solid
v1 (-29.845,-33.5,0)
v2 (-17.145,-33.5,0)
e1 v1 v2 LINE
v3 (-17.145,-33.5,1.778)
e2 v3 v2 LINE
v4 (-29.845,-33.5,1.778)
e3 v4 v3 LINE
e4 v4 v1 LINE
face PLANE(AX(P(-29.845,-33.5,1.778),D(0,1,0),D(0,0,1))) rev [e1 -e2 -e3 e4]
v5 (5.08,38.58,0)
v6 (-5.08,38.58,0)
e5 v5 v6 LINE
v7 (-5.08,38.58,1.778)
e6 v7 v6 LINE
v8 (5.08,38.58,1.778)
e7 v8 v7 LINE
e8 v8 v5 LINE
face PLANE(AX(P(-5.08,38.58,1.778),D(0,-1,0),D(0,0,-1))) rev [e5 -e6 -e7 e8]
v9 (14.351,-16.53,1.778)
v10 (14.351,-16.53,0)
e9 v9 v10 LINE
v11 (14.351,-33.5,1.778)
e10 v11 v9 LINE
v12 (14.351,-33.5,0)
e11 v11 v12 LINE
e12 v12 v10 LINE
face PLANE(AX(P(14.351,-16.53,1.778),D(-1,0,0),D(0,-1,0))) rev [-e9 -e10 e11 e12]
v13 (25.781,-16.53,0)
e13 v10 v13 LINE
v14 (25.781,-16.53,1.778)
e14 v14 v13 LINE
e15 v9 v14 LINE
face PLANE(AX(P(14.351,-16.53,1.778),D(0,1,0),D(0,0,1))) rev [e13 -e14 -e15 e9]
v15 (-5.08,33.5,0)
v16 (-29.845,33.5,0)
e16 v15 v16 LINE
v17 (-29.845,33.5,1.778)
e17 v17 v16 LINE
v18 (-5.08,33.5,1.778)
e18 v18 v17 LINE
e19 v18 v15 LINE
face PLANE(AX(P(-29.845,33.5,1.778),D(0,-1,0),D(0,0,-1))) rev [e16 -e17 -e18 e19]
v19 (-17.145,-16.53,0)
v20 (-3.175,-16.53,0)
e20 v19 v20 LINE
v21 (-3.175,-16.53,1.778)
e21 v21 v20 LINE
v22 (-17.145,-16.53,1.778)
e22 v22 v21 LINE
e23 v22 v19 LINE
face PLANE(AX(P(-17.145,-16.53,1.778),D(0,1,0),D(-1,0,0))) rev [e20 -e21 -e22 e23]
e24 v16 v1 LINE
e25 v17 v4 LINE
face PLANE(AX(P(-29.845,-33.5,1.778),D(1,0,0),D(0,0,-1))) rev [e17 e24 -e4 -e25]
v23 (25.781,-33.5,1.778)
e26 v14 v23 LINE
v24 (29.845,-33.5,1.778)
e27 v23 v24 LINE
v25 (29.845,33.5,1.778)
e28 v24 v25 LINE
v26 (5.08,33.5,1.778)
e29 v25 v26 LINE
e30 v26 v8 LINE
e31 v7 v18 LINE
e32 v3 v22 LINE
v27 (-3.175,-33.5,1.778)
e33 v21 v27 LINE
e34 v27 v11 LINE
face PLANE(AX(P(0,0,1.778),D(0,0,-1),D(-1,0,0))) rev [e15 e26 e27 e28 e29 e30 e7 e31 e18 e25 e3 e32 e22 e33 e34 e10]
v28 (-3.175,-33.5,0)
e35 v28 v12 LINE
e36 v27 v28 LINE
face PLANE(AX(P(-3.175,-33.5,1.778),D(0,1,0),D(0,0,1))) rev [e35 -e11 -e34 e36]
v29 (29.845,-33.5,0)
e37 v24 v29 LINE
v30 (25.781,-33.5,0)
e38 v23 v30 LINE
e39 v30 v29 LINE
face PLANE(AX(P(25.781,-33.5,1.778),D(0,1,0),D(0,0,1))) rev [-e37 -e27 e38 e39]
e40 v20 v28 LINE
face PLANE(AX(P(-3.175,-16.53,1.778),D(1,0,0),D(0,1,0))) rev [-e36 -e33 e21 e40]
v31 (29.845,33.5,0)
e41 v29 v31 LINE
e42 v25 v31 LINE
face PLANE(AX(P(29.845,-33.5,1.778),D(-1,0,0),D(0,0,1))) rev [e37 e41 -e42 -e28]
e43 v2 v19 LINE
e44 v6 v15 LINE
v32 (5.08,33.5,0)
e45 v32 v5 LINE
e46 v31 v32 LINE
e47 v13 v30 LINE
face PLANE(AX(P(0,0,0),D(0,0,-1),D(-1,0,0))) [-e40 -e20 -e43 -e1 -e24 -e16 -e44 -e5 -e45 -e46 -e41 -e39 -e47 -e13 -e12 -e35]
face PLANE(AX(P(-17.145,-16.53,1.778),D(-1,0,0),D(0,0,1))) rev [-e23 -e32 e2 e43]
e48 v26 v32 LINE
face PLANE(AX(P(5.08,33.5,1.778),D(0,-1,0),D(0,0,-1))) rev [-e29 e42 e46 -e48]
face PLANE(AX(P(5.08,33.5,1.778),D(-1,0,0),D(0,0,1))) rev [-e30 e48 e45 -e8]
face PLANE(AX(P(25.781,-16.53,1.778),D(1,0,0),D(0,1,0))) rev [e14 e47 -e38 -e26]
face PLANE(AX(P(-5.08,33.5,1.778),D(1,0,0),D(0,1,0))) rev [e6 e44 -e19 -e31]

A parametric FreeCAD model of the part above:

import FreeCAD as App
import Part
import Sketcher

V = App.Vector
Q = App.Units.Quantity


def add_polygon(sketch, points):
    """Adds a closed chain of lines whose ends are joined by coincident constraints."""
    first, n = sketch.GeometryCount, len(points)
    for a, b in zip(points, points[1:] + points[:1]):
        sketch.addGeometry(Part.LineSegment(App.Vector(*a, 0), App.Vector(*b, 0)), False)
    for i in range(n):
        sketch.addConstraint(Sketcher.Constraint("Coincident", first + i, 2, first + (i + 1) % n, 1))

doc = App.newDocument("Part")
params = doc.addObject("Spreadsheet::Sheet", "Params")
for row, (alias, value) in enumerate([
    ("sketch1_width", "0.4 in"),
    ("sketch1_width2", "0.5 in"),
    ("sketch1_height", "0.2 in"),
    ("sketch1_width3", "0.55 in"),
    ("sketch1_width4", "0.69 in"),
    ("pad1_length", "0.07 in"),
], start=1):
    params.set(f"A{row}", alias)
    params.set(f"B{row}", "=" + value)
    params.setAlias(f"B{row}", alias)

body = doc.addObject("PartDesign::Body", "Body")

sketch1 = doc.addObject("Sketcher::SketchObject", "Sketch")
body.addObject(sketch1)
sketch1.AttachmentSupport = (doc.XY_Plane, [""])
sketch1.MapMode = "FlatFace"
add_polygon(sketch1, [(29.8, 33.5), (5.1, 33.5), (5.1, 38.6), (-5.1, 38.6), (-5.1, 33.5), (-29.8, 33.5), (-29.8, -33.5), (-17.1, -33.5), (-17.1, -16.5), (-3.2, -16.5), (-3.2, -33.5), (14.4, -33.5), (14.4, -16.5), (25.8, -16.5), (25.8, -33.5), (29.8, -33.5)])
sketch1.addConstraint(Sketcher.Constraint("Horizontal", 0))
sketch1.addConstraint(Sketcher.Constraint("Vertical", 1))
sketch1.addConstraint(Sketcher.Constraint("Horizontal", 2))
sketch1.addConstraint(Sketcher.Constraint("Vertical", 3))
sketch1.addConstraint(Sketcher.Constraint("Horizontal", 4))
sketch1.addConstraint(Sketcher.Constraint("Vertical", 5))
sketch1.addConstraint(Sketcher.Constraint("Horizontal", 6))
sketch1.addConstraint(Sketcher.Constraint("Vertical", 7))
sketch1.addConstraint(Sketcher.Constraint("Horizontal", 8))
sketch1.addConstraint(Sketcher.Constraint("Vertical", 9))
sketch1.addConstraint(Sketcher.Constraint("Horizontal", 10))
sketch1.addConstraint(Sketcher.Constraint("Vertical", 11))
sketch1.addConstraint(Sketcher.Constraint("Horizontal", 12))
sketch1.addConstraint(Sketcher.Constraint("Vertical", 13))
sketch1.addConstraint(Sketcher.Constraint("Horizontal", 14))
sketch1.addConstraint(Sketcher.Constraint("Vertical", 15))
sketch1.addConstraint(Sketcher.Constraint("Symmetric", 4, 2, 14, 2, -1, 1))
sketch1.addConstraint(Sketcher.Constraint("Symmetric", 0, 2, 3, 2, -2))
sketch1.addConstraint(Sketcher.Constraint("Horizontal", 6, 2, 9, 2))
sketch1.addConstraint(Sketcher.Constraint("Horizontal", 8, 2, 11, 2))
sketch1.addConstraint(Sketcher.Constraint("Horizontal", 10, 2, 13, 2))
sketch1.addConstraint(Sketcher.Constraint("DistanceX", 2, 2, 2, 1, Q("0.4 in")))
sketch1.addConstraint(Sketcher.Constraint("DistanceX", 6, 1, 6, 2, Q("0.5 in")))
sketch1.addConstraint(Sketcher.Constraint("DistanceY", 1, 1, 1, 2, Q("0.2 in")))
sketch1.addConstraint(Sketcher.Constraint("DistanceX", 8, 1, 8, 2, Q("0.55 in")))
sketch1.addConstraint(Sketcher.Constraint("DistanceX", 10, 1, 10, 2, Q("0.69 in")))
sketch1.addConstraint(Sketcher.Constraint("DistanceX", 12, 1, 12, 2, Q("0.45 in")))
sketch1.addConstraint(Sketcher.Constraint("DistanceX", 14, 1, 14, 2, Q("0.16 in")))
sketch1.addConstraint(Sketcher.Constraint("DistanceY", 5, 2, 5, 1, 67.0))
sketch1.addConstraint(Sketcher.Constraint("DistanceY", 7, 1, 7, 2, 16.97))
sketch1.setExpression("Constraints[37]", "Params.sketch1_width")
sketch1.setExpression("Constraints[38]", "Params.sketch1_width2")
sketch1.setExpression("Constraints[39]", "Params.sketch1_height")
sketch1.setExpression("Constraints[40]", "Params.sketch1_width3")
sketch1.setExpression("Constraints[41]", "Params.sketch1_width4")
pad1 = doc.addObject("PartDesign::Pad", "Pad")
body.addObject(pad1)
pad1.Profile = sketch1
pad1.setExpression("Length", "Params.pad1_length")

doc.recompute()
